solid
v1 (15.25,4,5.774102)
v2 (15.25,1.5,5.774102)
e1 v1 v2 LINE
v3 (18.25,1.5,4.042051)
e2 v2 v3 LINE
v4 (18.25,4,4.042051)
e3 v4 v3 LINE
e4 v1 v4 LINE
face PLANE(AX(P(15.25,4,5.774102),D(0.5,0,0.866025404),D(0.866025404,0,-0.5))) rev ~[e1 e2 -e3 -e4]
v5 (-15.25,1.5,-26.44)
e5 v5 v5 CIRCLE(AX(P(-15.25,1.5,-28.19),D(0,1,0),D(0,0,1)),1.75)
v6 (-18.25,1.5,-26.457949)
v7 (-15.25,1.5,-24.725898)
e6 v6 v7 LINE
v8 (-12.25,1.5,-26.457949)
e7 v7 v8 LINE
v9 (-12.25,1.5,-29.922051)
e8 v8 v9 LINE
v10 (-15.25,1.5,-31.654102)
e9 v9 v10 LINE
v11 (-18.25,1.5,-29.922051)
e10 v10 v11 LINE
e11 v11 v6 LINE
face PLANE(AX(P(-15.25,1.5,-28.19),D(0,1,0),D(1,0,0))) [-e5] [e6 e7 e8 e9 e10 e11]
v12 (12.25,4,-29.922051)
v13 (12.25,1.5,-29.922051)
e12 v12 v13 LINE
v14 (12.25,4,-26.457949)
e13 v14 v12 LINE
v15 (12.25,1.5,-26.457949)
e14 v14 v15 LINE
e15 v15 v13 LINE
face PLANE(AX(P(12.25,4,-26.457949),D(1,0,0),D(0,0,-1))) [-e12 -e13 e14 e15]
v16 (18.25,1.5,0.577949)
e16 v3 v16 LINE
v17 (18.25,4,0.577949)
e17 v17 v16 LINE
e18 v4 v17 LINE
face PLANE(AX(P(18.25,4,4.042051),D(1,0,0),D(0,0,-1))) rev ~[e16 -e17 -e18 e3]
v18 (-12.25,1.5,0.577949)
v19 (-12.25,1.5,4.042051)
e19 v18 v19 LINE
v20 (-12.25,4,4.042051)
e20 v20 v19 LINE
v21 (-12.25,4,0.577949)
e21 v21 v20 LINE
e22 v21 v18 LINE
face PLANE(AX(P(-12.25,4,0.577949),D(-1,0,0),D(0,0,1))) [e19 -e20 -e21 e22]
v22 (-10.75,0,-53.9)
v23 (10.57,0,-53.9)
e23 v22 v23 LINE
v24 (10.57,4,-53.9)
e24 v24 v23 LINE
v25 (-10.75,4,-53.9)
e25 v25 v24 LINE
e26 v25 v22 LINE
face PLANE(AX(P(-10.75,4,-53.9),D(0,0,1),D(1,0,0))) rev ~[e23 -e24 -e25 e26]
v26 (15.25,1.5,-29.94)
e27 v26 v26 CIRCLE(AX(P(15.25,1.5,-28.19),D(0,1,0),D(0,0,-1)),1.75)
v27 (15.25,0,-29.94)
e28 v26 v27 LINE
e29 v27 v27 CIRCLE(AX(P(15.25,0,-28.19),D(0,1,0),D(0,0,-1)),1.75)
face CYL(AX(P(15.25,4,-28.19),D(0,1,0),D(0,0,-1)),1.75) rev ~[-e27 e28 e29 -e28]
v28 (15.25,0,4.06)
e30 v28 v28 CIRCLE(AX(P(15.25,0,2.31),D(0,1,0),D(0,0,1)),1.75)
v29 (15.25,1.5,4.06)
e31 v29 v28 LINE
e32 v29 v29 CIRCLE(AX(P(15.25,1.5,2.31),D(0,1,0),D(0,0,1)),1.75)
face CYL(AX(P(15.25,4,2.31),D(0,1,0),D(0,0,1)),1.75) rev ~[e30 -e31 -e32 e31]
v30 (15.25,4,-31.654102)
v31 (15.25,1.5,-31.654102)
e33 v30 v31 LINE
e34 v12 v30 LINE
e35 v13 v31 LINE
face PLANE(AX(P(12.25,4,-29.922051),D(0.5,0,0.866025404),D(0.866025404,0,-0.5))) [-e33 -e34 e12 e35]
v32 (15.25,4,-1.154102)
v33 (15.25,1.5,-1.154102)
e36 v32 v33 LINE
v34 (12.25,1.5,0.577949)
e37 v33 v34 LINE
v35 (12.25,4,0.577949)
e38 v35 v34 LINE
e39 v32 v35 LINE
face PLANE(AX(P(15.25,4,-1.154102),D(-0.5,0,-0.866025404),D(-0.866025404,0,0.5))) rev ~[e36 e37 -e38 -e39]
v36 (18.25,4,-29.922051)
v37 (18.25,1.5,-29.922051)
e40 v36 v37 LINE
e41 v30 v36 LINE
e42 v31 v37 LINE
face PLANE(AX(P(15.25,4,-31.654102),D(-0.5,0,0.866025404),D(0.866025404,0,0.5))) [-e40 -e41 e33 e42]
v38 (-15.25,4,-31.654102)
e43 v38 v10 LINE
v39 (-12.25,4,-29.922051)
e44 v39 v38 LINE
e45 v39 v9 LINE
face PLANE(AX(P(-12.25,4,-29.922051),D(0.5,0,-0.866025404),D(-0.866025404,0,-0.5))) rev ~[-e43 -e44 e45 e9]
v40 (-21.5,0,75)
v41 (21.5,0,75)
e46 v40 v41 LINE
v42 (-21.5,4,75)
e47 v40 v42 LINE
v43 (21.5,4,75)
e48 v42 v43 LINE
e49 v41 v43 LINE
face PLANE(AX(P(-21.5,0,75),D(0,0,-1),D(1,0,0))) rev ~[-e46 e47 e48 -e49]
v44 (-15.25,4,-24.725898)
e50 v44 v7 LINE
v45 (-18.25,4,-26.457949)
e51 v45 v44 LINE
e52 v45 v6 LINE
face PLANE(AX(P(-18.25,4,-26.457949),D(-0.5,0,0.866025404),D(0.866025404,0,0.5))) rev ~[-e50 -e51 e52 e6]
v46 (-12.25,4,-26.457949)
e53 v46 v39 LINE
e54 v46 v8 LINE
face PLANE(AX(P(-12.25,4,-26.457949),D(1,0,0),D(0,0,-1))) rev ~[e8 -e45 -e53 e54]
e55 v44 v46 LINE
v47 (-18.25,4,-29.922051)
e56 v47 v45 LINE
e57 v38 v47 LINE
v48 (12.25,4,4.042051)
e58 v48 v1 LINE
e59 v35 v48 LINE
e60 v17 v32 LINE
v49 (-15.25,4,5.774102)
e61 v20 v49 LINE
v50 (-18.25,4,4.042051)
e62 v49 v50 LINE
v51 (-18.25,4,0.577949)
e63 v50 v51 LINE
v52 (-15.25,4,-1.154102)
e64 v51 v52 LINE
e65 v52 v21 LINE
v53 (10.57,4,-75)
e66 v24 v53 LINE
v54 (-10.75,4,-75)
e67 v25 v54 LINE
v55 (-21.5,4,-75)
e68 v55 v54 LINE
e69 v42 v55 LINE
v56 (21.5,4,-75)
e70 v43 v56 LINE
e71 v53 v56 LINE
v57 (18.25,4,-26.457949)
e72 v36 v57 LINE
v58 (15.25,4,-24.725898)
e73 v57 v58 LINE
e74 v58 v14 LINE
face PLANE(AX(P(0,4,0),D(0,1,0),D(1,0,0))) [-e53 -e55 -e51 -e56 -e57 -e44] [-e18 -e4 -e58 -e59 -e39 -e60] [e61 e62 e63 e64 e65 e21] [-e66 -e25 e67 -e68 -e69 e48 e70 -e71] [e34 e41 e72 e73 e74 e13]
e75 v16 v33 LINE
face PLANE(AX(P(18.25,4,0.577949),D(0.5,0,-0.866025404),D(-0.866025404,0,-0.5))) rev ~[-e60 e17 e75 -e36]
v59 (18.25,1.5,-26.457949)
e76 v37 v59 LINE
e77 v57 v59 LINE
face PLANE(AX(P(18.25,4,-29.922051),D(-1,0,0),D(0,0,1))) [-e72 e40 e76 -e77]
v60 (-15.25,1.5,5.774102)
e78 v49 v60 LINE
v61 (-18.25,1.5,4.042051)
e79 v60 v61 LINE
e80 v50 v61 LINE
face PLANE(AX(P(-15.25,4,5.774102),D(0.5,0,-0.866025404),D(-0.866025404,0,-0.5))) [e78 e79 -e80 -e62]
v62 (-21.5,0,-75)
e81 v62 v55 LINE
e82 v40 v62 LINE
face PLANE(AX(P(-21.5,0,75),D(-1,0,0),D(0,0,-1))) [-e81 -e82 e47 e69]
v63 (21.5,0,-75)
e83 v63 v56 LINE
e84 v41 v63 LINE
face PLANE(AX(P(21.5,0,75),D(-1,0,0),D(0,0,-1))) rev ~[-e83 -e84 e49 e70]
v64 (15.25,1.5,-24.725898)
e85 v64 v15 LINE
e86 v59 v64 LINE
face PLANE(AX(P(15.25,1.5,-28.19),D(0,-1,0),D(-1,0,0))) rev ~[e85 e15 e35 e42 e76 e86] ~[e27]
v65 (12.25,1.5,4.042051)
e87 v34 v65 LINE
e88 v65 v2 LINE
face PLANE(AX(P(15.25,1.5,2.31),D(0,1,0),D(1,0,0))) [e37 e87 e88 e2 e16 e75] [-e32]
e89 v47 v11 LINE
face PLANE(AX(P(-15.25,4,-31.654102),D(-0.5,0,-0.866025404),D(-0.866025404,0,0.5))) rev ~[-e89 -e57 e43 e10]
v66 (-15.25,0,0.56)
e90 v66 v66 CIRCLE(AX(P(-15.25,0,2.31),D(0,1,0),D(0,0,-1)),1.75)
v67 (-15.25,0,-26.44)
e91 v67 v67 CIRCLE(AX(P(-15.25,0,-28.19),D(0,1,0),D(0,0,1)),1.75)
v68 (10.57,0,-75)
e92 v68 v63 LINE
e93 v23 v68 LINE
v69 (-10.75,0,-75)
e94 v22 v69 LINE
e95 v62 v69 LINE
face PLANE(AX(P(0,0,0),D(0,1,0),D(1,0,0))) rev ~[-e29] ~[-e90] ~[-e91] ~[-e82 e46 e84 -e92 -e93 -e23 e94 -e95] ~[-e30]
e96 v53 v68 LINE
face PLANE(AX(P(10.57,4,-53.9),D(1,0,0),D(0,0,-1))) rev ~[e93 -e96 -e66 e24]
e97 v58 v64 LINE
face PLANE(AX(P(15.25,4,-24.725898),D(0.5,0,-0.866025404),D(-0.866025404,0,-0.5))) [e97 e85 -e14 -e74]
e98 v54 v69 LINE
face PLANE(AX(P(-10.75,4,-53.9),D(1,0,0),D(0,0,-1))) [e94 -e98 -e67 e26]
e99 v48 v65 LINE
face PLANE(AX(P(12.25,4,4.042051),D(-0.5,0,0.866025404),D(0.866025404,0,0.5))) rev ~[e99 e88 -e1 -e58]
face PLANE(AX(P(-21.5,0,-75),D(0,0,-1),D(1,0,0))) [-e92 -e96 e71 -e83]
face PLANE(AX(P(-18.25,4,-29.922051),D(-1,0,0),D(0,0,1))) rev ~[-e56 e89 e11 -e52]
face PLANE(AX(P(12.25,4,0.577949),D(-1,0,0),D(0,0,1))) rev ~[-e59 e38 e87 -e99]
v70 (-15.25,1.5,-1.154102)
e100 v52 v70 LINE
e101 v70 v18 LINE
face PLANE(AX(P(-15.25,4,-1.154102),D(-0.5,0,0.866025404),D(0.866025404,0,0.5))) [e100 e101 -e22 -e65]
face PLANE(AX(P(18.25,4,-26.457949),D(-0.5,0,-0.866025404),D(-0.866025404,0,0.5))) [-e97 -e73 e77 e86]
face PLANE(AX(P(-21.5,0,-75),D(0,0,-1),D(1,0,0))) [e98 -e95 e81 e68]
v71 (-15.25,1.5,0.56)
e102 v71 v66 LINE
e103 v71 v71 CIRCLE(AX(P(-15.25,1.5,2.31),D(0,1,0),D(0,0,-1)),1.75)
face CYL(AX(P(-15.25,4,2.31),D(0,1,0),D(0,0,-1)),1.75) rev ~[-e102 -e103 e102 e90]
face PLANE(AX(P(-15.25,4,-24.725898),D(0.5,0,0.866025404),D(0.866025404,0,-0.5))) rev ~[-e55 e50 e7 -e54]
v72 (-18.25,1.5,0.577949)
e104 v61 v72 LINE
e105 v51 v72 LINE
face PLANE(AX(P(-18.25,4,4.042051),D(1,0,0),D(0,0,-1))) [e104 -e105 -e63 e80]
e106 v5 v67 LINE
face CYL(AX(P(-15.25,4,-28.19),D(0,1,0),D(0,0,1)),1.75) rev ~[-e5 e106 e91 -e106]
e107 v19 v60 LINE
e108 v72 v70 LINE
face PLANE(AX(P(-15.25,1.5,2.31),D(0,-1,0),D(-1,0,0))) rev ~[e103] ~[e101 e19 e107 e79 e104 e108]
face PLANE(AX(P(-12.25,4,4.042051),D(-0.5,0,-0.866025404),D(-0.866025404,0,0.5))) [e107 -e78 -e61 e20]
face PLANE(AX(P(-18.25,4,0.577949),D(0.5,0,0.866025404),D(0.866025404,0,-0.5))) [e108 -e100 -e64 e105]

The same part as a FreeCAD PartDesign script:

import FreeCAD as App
import Part
import Sketcher
Q = App.Units.Quantity

doc = App.newDocument("Part")
body = doc.addObject("PartDesign::Body", "Body")

sketch1 = body.newObject("Sketcher::SketchObject", "Sketch")
sketch1.AttachmentSupport = (doc.getObject("XZ_Plane"), [""])
sketch1.MapMode = "FlatFace"
sketch1.addGeometry(Part.LineSegment(App.Vector(-22, -75, 0), App.Vector(-22, 75, 0)), False)
sketch1.addGeometry(Part.LineSegment(App.Vector(-22, 75, 0), App.Vector(22, 75, 0)), False)
sketch1.addGeometry(Part.LineSegment(App.Vector(22, 75, 0), App.Vector(22, -75, 0)), False)
sketch1.addGeometry(Part.LineSegment(App.Vector(22, -75, 0), App.Vector(-22, -75, 0)), False)
sketch1.addConstraint(Sketcher.Constraint("Coincident", 0, 2, 1, 1))
sketch1.addConstraint(Sketcher.Constraint("Coincident", 1, 2, 2, 1))
sketch1.addConstraint(Sketcher.Constraint("Coincident", 2, 2, 3, 1))
sketch1.addConstraint(Sketcher.Constraint("Coincident", 3, 2, 0, 1))
sketch1.addConstraint(Sketcher.Constraint("Vertical", 0))
sketch1.addConstraint(Sketcher.Constraint("Horizontal", 1))
sketch1.addConstraint(Sketcher.Constraint("Vertical", 2))
sketch1.addConstraint(Sketcher.Constraint("Horizontal", 3))
sketch1.addConstraint(Sketcher.Constraint("Symmetric", 0, 2, 2, 2, -1, 1))
sketch1.addConstraint(Sketcher.Constraint("DistanceX", 1, 1, 1, 2, Q("43 mm")))
sketch1.addConstraint(Sketcher.Constraint("DistanceY", 0, 1, 0, 2, Q("150 mm")))
pad1 = body.newObject("PartDesign::Pad", "Pad")
pad1.Profile = sketch1
pad1.Length = 4
pad1.Reversed = True

sketch2 = body.newObject("Sketcher::SketchObject", "Sketch001")
sketch2.AttachmentSupport = (doc.getObject("XZ_Plane"), [""])
sketch2.MapMode = "FlatFace"
sketch2.AttachmentOffset = App.Placement(App.Vector(0, 0, -4), App.Rotation())
sketch2.addGeometry(Part.LineSegment(App.Vector(11, -54, 0), App.Vector(11, -75, 0)), False)
sketch2.addGeometry(Part.LineSegment(App.Vector(11, -75, 0), App.Vector(-11, -75, 0)), False)
sketch2.addGeometry(Part.LineSegment(App.Vector(-11, -75, 0), App.Vector(-11, -54, 0)), False)
sketch2.addGeometry(Part.LineSegment(App.Vector(-11, -54, 0), App.Vector(11, -54, 0)), False)
sketch2.addConstraint(Sketcher.Constraint("Coincident", 0, 2, 1, 1))
sketch2.addConstraint(Sketcher.Constraint("Coincident", 1, 2, 2, 1))
sketch2.addConstraint(Sketcher.Constraint("Coincident", 2, 2, 3, 1))
sketch2.addConstraint(Sketcher.Constraint("Coincident", 3, 2, 0, 1))
sketch2.addConstraint(Sketcher.Constraint("Vertical", 0))
sketch2.addConstraint(Sketcher.Constraint("Horizontal", 1))
sketch2.addConstraint(Sketcher.Constraint("Vertical", 2))
sketch2.addConstraint(Sketcher.Constraint("Horizontal", 3))
sketch2.addConstraint(Sketcher.Constraint("DistanceY", 0, 2, 0, 1, Q("21.1 mm")))
sketch2.addConstraint(Sketcher.Constraint("DistanceY", 0, 2, -1, 1, Q("75 mm")))
sketch2.addConstraint(Sketcher.Constraint("DistanceX", 1, 2, 1, 1, Q("21.32 mm")))
sketch2.addConstraint(Sketcher.Constraint("DistanceX", -1, 1, 0, 2, Q("10.57 mm")))
pocket1 = body.newObject("PartDesign::Pocket", "Pocket")
pocket1.Profile = sketch2
pocket1.Type = "ThroughAll"
pocket1.Reversed = True

sketch3 = body.newObject("Sketcher::SketchObject", "Sketch002")
sketch3.AttachmentSupport = (doc.getObject("XZ_Plane"), [""])
sketch3.MapMode = "FlatFace"
sketch3.AttachmentOffset = App.Placement(App.Vector(0, 0, -4), App.Rotation())
sketch3.addGeometry(Part.LineSegment(App.Vector(-15.2, -31.7, 0), App.Vector(-18.2, -29.9, 0)), False)
sketch3.addGeometry(Part.LineSegment(App.Vector(-18.2, -29.9, 0), App.Vector(-18.2, -26.5, 0)), False)
sketch3.addGeometry(Part.LineSegment(App.Vector(-18.2, -26.5, 0), App.Vector(-15.2, -24.7, 0)), False)
sketch3.addGeometry(Part.LineSegment(App.Vector(-15.2, -24.7, 0), App.Vector(-12.2, -26.5, 0)), False)
sketch3.addGeometry(Part.LineSegment(App.Vector(-12.2, -26.5, 0), App.Vector(-12.2, -29.9, 0)), False)
sketch3.addGeometry(Part.LineSegment(App.Vector(-12.2, -29.9, 0), App.Vector(-15.2, -31.7, 0)), False)
sketch3.addGeometry(Part.LineSegment(App.Vector(15.2, -31.7, 0), App.Vector(12.2, -29.9, 0)), False)
sketch3.addGeometry(Part.LineSegment(App.Vector(12.2, -29.9, 0), App.Vector(12.2, -26.5, 0)), False)
sketch3.addGeometry(Part.LineSegment(App.Vector(12.2, -26.5, 0), App.Vector(15.2, -24.7, 0)), False)
sketch3.addGeometry(Part.LineSegment(App.Vector(15.2, -24.7, 0), App.Vector(18.2, -26.5, 0)), False)
sketch3.addGeometry(Part.LineSegment(App.Vector(18.2, -26.5, 0), App.Vector(18.2, -29.9, 0)), False)
sketch3.addGeometry(Part.LineSegment(App.Vector(18.2, -29.9, 0), App.Vector(15.2, -31.7, 0)), False)
sketch3.addGeometry(Part.LineSegment(App.Vector(12.2, 0.6, 0), App.Vector(12.2, 4, 0)), False)
sketch3.addGeometry(Part.LineSegment(App.Vector(12.2, 4, 0), App.Vector(15.2, 5.8, 0)), False)
sketch3.addGeometry(Part.LineSegment(App.Vector(15.2, 5.8, 0), App.Vector(18.2, 4, 0)), False)
sketch3.addGeometry(Part.LineSegment(App.Vector(18.2, 4, 0), App.Vector(18.2, 0.6, 0)), False)
sketch3.addGeometry(Part.LineSegment(App.Vector(18.2, 0.6, 0), App.Vector(15.2, -1.2, 0)), False)
sketch3.addGeometry(Part.LineSegment(App.Vector(15.2, -1.2, 0), App.Vector(12.2, 0.6, 0)), False)
sketch3.addGeometry(Part.LineSegment(App.Vector(-15.2, 5.8, 0), App.Vector(-12.2, 4, 0)), False)
sketch3.addGeometry(Part.LineSegment(App.Vector(-12.2, 4, 0), App.Vector(-12.2, 0.6, 0)), False)
sketch3.addGeometry(Part.LineSegment(App.Vector(-12.2, 0.6, 0), App.Vector(-15.2, -1.2, 0)), False)
sketch3.addGeometry(Part.LineSegment(App.Vector(-15.2, -1.2, 0), App.Vector(-18.2, 0.6, 0)), False)
sketch3.addGeometry(Part.LineSegment(App.Vector(-18.2, 0.6, 0), App.Vector(-18.2, 4, 0)), False)
sketch3.addGeometry(Part.LineSegment(App.Vector(-18.2, 4, 0), App.Vector(-15.2, 5.8, 0)), False)
sketch3.addConstraint(Sketcher.Constraint("Coincident", 0, 2, 1, 1))
sketch3.addConstraint(Sketcher.Constraint("Coincident", 1, 2, 2, 1))
sketch3.addConstraint(Sketcher.Constraint("Coincident", 2, 2, 3, 1))
sketch3.addConstraint(Sketcher.Constraint("Coincident", 3, 2, 4, 1))
sketch3.addConstraint(Sketcher.Constraint("Coincident", 4, 2, 5, 1))
sketch3.addConstraint(Sketcher.Constraint("Coincident", 5, 2, 0, 1))
sketch3.addConstraint(Sketcher.Constraint("Coincident", 6, 2, 7, 1))
sketch3.addConstraint(Sketcher.Constraint("Coincident", 7, 2, 8, 1))
sketch3.addConstraint(Sketcher.Constraint("Coincident", 8, 2, 9, 1))
sketch3.addConstraint(Sketcher.Constraint("Coincident", 9, 2, 10, 1))
sketch3.addConstraint(Sketcher.Constraint("Coincident", 10, 2, 11, 1))
sketch3.addConstraint(Sketcher.Constraint("Coincident", 11, 2, 6, 1))
sketch3.addConstraint(Sketcher.Constraint("Coincident", 12, 2, 13, 1))
sketch3.addConstraint(Sketcher.Constraint("Coincident", 13, 2, 14, 1))
sketch3.addConstraint(Sketcher.Constraint("Coincident", 14, 2, 15, 1))
sketch3.addConstraint(Sketcher.Constraint("Coincident", 15, 2, 16, 1))
sketch3.addConstraint(Sketcher.Constraint("Coincident", 16, 2, 17, 1))
sketch3.addConstraint(Sketcher.Constraint("Coincident", 17, 2, 12, 1))
sketch3.addConstraint(Sketcher.Constraint("Coincident", 18, 2, 19, 1))
sketch3.addConstraint(Sketcher.Constraint("Coincident", 19, 2, 20, 1))
sketch3.addConstraint(Sketcher.Constraint("Coincident", 20, 2, 21, 1))
sketch3.addConstraint(Sketcher.Constraint("Coincident", 21, 2, 22, 1))
sketch3.addConstraint(Sketcher.Constraint("Coincident", 22, 2, 23, 1))
sketch3.addConstraint(Sketcher.Constraint("Coincident", 23, 2, 18, 1))
sketch3.addConstraint(Sketcher.Constraint("Vertical", 1))
sketch3.addConstraint(Sketcher.Constraint("Vertical", 4))
sketch3.addConstraint(Sketcher.Constraint("Vertical", 7))
sketch3.addConstraint(Sketcher.Constraint("Vertical", 10))
sketch3.addConstraint(Sketcher.Constraint("Vertical", 12))
sketch3.addConstraint(Sketcher.Constraint("Vertical", 15))
sketch3.addConstraint(Sketcher.Constraint("Vertical", 19))
sketch3.addConstraint(Sketcher.Constraint("Vertical", 22))
sketch3.addConstraint(Sketcher.Constraint("Symmetric", 4, 2, 6, 2, -2))
sketch3.addConstraint(Sketcher.Constraint("Symmetric", 2, 2, 8, 2, -2))
sketch3.addConstraint(Sketcher.Constraint("Symmetric", 1, 2, 9, 2, -2))
sketch3.addConstraint(Sketcher.Constraint("Symmetric", 5, 2, 11, 2, -2))
sketch3.addConstraint(Sketcher.Constraint("Symmetric", 12, 2, 18, 2, -2))
sketch3.addConstraint(Sketcher.Constraint("Symmetric", 16, 2, 20, 2, -2))
sketch3.addConstraint(Sketcher.Constraint("Symmetric", 15, 2, 21, 2, -2))
sketch3.addConstraint(Sketcher.Constraint("Symmetric", 13, 2, 23, 2, -2))
sketch3.addConstraint(Sketcher.Constraint("Parallel", 0, 3))
sketch3.addConstraint(Sketcher.Constraint("Parallel", 2, 5))
sketch3.addConstraint(Sketcher.Constraint("Parallel", 3, 6))
sketch3.addConstraint(Sketcher.Constraint("Parallel", 5, 8))
sketch3.addConstraint(Sketcher.Constraint("Parallel", 8, 11))
sketch3.addConstraint(Sketcher.Constraint("Parallel", 11, 13))
sketch3.addConstraint(Sketcher.Constraint("Parallel", 9, 14))
sketch3.addConstraint(Sketcher.Constraint("Parallel", 13, 16))
sketch3.addConstraint(Sketcher.Constraint("Parallel", 14, 17))
sketch3.addConstraint(Sketcher.Constraint("Parallel", 16, 20))
sketch3.addConstraint(Sketcher.Constraint("Parallel", 20, 23))
sketch3.addConstraint(Sketcher.Constraint("Horizontal", 1, 2, 3, 2))
sketch3.addConstraint(Sketcher.Constraint("Horizontal", 0, 2, 4, 2))
sketch3.addConstraint(Sketcher.Constraint("Horizontal", 12, 2, 14, 2))
sketch3.addConstraint(Sketcher.Constraint("Horizontal", 15, 2, 17, 2))
sketch3.addConstraint(Sketcher.Constraint("Vertical", 7, 2, 12, 2))
sketch3.addConstraint(Sketcher.Constraint("Vertical", 11, 2, 13, 2))
sketch3.addConstraint(Sketcher.Constraint("Equal", 10, 12))
sketch3.addConstraint(Sketcher.Constraint("Angle", 0, Q("150 deg")))
sketch3.addConstraint(Sketcher.Constraint("DistanceX", 1, 2, 2, 2, Q("3 mm")))
sketch3.addConstraint(Sketcher.Constraint("DistanceX", 4, 2, 6, 2, Q("24.5 mm")))
sketch3.addConstraint(Sketcher.Constraint("DistanceY", 7, 2, 12, 2, Q("30.5 mm")))
sketch3.addConstraint(Sketcher.Constraint("DistanceY", 1, 1, 1, 2, Q("3.464102 mm")))
sketch3.addConstraint(Sketcher.Constraint("DistanceY", 2, 2, -1, 1, Q("24.725898 mm")))
pocket2 = body.newObject("PartDesign::Pocket", "Pocket001")
pocket2.Profile = sketch3
pocket2.Length = 2.5
pocket2.Reversed = True

sketch4 = body.newObject("Sketcher::SketchObject", "Sketch003")
sketch4.AttachmentSupport = (doc.getObject("XZ_Plane"), [""])
sketch4.MapMode = "FlatFace"
sketch4.AttachmentOffset = App.Placement(App.Vector(0, 0, -4), App.Rotation())
sketch4.addGeometry(Part.Circle(App.Vector(-15.2, -28.2, 0), App.Vector(0, 0, 1), 1.8), False)
sketch4.addGeometry(Part.Circle(App.Vector(15.2, -28.2, 0), App.Vector(0, 0, 1), 1.8), False)
sketch4.addGeometry(Part.Circle(App.Vector(15.2, 2.3, 0), App.Vector(0, 0, 1), 1.8), False)
sketch4.addGeometry(Part.Circle(App.Vector(-15.2, 2.3, 0), App.Vector(0, 0, 1), 1.8), False)
sketch4.addConstraint(Sketcher.Constraint("Equal", 0, 1))
sketch4.addConstraint(Sketcher.Constraint("Equal", 1, 2))
sketch4.addConstraint(Sketcher.Constraint("Equal", 2, 3))
sketch4.addConstraint(Sketcher.Constraint("Symmetric", 0, 3, 1, 3, -2))
sketch4.addConstraint(Sketcher.Constraint("Symmetric", 2, 3, 3, 3, -2))
sketch4.addConstraint(Sketcher.Constraint("Vertical", 1, 3, 2, 3))
sketch4.addConstraint(Sketcher.Constraint("Diameter", 0, Q("3.5 mm")))
sketch4.addConstraint(Sketcher.Constraint("DistanceX", 0, 3, 1, 3, Q("30.5 mm")))
sketch4.addConstraint(Sketcher.Constraint("DistanceY", 1, 3, 2, 3, Q("30.5 mm")))
sketch4.addConstraint(Sketcher.Constraint("DistanceY", 0, 3, -1, 1, Q("28.19 mm")))
pocket3 = body.newObject("PartDesign::Pocket", "Pocket002")
pocket3.Profile = sketch4
pocket3.Type = "ThroughAll"
pocket3.Reversed = True

doc.recompute()
